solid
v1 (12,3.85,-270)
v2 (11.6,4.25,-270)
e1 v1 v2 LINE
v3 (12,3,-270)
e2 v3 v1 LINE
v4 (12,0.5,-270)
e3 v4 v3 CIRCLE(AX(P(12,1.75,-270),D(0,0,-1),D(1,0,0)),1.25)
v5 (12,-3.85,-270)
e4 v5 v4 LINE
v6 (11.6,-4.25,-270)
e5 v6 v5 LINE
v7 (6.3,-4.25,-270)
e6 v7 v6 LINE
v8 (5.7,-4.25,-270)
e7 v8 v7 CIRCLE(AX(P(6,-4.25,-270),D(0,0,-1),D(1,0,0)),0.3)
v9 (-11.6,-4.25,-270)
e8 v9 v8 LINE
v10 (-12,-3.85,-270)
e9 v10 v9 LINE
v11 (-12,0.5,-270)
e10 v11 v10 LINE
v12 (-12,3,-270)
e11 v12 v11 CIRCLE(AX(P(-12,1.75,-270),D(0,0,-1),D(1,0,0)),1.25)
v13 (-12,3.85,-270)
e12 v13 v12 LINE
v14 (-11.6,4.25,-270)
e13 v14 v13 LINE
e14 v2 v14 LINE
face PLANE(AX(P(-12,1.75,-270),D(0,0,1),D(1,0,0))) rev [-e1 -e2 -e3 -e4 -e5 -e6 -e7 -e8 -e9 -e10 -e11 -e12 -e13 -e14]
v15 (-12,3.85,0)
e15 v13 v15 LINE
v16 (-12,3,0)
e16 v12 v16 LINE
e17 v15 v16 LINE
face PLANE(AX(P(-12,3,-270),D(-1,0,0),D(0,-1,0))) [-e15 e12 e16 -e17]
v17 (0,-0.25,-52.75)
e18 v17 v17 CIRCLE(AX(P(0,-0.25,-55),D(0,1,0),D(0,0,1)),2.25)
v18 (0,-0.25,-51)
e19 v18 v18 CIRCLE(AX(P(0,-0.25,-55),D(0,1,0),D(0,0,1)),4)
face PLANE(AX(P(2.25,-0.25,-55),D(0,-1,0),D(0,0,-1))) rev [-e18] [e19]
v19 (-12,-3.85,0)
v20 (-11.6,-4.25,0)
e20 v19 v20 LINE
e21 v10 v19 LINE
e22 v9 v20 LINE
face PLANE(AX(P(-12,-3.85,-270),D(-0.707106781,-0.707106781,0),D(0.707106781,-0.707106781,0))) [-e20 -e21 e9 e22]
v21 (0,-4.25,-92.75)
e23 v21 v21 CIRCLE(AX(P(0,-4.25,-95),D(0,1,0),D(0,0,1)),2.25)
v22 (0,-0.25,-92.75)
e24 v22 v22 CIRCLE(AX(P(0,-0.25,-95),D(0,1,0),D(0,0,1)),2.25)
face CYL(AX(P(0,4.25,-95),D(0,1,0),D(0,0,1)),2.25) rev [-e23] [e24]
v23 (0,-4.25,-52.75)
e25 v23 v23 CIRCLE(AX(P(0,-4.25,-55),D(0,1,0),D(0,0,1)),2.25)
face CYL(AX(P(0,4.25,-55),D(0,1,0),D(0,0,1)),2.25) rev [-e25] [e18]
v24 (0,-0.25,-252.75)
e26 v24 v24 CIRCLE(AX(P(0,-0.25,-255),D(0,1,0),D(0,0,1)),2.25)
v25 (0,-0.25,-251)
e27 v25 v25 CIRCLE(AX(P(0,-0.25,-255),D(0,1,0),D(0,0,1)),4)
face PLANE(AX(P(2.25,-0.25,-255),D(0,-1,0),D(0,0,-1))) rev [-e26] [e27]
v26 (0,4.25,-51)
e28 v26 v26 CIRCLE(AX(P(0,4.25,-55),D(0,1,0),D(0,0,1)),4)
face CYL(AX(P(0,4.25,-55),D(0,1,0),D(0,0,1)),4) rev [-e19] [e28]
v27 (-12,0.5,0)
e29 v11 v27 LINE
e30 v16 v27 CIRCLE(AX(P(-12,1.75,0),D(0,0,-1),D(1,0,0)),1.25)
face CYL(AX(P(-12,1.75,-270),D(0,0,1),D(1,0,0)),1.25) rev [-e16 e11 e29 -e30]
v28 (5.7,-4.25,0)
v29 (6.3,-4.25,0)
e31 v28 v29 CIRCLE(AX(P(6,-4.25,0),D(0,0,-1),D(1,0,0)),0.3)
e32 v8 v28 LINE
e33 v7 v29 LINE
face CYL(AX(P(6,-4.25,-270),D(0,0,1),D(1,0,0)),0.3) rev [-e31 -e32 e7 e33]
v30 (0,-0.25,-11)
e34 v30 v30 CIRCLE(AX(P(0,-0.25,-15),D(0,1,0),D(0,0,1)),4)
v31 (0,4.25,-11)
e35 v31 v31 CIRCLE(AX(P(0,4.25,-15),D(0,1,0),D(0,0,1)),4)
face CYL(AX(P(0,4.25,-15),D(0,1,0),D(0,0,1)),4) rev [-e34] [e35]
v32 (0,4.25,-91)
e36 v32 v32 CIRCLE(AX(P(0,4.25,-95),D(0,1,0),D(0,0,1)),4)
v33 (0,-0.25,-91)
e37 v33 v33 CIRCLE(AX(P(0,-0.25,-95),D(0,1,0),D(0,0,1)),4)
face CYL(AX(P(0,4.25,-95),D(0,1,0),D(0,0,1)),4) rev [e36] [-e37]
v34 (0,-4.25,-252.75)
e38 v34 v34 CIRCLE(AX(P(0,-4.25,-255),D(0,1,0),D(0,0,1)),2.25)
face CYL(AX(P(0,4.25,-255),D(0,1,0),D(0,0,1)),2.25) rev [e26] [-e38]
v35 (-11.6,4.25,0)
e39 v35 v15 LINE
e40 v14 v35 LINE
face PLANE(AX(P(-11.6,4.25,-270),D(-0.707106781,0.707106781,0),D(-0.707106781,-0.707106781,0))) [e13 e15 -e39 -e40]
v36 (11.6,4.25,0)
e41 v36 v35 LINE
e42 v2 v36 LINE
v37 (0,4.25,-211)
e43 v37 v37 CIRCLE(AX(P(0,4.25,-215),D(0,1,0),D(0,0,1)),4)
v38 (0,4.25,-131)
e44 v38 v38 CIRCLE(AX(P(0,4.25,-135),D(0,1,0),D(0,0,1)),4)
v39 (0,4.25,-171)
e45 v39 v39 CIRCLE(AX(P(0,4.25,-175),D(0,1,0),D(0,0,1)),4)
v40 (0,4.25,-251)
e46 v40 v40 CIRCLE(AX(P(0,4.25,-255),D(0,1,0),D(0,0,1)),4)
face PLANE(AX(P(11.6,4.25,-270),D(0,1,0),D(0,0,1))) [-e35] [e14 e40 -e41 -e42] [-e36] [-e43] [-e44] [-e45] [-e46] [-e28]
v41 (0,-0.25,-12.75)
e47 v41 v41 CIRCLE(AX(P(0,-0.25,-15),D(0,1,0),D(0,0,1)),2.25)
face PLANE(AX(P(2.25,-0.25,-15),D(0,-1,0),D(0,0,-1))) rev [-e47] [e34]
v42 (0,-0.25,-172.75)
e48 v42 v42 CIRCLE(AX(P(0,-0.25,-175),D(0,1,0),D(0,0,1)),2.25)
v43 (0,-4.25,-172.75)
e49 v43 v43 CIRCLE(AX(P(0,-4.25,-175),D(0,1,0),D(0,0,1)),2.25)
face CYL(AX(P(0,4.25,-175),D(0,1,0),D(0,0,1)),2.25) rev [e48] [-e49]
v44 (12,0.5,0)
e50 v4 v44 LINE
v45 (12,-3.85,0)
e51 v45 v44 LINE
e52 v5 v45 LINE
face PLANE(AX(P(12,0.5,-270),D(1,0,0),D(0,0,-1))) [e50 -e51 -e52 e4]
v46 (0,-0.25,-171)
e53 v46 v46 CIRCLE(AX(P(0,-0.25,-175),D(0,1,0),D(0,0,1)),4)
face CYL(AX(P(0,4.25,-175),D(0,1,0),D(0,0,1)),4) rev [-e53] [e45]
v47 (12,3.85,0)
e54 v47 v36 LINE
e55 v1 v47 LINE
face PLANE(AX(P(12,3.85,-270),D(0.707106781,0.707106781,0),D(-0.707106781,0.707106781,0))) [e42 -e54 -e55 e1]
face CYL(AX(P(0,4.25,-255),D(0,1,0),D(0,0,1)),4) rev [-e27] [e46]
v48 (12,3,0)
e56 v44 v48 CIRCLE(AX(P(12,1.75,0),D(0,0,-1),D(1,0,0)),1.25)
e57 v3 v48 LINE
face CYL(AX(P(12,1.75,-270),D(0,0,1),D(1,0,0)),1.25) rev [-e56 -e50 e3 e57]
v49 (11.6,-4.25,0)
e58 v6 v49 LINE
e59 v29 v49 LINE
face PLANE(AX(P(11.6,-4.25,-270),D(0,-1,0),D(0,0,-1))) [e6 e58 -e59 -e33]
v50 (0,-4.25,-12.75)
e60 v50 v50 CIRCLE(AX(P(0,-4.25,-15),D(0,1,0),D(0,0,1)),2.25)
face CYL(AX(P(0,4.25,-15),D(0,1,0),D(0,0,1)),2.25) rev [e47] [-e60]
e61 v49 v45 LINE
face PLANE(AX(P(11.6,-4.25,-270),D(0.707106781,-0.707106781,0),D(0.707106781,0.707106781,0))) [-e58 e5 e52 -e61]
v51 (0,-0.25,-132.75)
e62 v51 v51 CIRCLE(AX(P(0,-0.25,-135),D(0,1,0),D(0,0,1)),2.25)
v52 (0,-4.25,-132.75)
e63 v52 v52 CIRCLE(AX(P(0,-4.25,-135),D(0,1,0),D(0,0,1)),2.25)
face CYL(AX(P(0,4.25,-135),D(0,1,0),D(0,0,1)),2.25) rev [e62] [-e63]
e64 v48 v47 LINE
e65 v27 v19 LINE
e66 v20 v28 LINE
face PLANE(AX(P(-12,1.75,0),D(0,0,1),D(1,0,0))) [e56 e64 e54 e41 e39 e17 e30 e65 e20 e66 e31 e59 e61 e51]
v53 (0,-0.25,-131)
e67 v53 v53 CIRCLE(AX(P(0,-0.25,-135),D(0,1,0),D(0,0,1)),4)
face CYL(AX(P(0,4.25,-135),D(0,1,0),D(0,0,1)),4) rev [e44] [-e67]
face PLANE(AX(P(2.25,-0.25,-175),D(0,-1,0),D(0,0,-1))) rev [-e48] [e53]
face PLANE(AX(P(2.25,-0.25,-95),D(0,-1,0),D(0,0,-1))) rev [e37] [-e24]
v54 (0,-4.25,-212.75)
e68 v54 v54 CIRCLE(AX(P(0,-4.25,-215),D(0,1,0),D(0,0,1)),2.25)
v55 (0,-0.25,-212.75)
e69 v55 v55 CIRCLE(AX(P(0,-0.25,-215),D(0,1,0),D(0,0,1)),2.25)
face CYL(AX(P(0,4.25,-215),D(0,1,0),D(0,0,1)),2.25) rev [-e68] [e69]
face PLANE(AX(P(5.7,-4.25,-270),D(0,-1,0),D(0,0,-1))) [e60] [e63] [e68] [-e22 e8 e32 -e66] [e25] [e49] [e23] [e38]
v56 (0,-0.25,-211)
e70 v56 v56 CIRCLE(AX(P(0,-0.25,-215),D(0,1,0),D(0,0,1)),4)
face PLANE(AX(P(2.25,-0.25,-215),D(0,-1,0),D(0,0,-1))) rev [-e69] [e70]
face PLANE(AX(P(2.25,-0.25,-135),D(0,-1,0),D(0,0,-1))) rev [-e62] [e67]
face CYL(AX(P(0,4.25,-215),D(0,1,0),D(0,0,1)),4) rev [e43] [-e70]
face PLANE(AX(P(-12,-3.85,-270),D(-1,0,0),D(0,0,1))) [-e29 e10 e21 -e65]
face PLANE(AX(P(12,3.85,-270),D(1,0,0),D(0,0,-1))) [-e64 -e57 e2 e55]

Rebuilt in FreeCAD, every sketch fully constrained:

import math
import FreeCAD as App
import Part
import Sketcher

V = App.Vector

doc = App.newDocument("Part")
params = doc.addObject("Spreadsheet::Sheet", "Params")
for row, (alias, value) in enumerate([
    ("sketch1_radius", "0.3 mm"),
    ("sketch1_radius2", "1.25 mm"),
    ("sketch1_width", "17.3 mm"),
    ("sketch1_width2", "5.3 mm"),
    ("pad1_length", "270 mm"),
    ("sketch2_diameter", "4.5 mm"),
    ("hole_diameter", "4.5 mm"),
    ("hole_cbore_diameter", "8 mm"),
    ("hole_cbore_depth", "4.5 mm"),
    ("linearpattern_pitch", "40 mm"),
], start=1):
    params.set(f"A{row}", alias)
    params.set(f"B{row}", "=" + value)
    params.setAlias(f"B{row}", alias)

body = doc.addObject("PartDesign::Body", "Body")

sketch1 = body.newObject("Sketcher::SketchObject", "Sketch")
sketch1.AttachmentSupport = (doc.getObject("XY_Plane"), [""])
sketch1.MapMode = "FlatFace"
sketch1.addGeometry([
    Part.LineSegment(V(-12, 3.85, 0), V(-12, 3, 0)),
    Part.ArcOfCircle(Part.Circle(V(-12, 1.75, 0), V(0, 0, 1), 1.25), math.radians(-90), math.radians(90)),
    Part.LineSegment(V(-12, 0.5, 0), V(-12, -3.85, 0)),
    Part.LineSegment(V(-12, -3.85, 0), V(-11.6, -4.25, 0)),
    Part.LineSegment(V(-11.6, -4.25, 0), V(5.7, -4.25, 0)),
    Part.ArcOfCircle(Part.Circle(V(6, -4.25, 0), V(0, 0, 1), 0.3), math.radians(0), math.radians(180)),
    Part.LineSegment(V(6.3, -4.25, 0), V(11.6, -4.25, 0)),
    Part.LineSegment(V(11.6, -4.25, 0), V(12, -3.85, 0)),
    Part.LineSegment(V(12, -3.85, 0), V(12, 0.5, 0)),
    Part.ArcOfCircle(Part.Circle(V(12, 1.75, 0), V(0, 0, 1), 1.25), math.radians(90), math.radians(270)),
    Part.LineSegment(V(12, 3, 0), V(12, 3.85, 0)),
    Part.LineSegment(V(12, 3.85, 0), V(11.6, 4.25, 0)),
    Part.LineSegment(V(11.6, 4.25, 0), V(-11.6, 4.25, 0)),
    Part.LineSegment(V(-11.6, 4.25, 0), V(-12, 3.85, 0)),
], False)
sketch1.addConstraint([
    Sketcher.Constraint("Coincident", 0, 2, 1, 2),
    Sketcher.Constraint("Coincident", 1, 1, 2, 1),
    Sketcher.Constraint("Coincident", 2, 2, 3, 1),
    Sketcher.Constraint("Coincident", 3, 2, 4, 1),
    Sketcher.Constraint("Coincident", 4, 2, 5, 2),
    Sketcher.Constraint("Coincident", 5, 1, 6, 1),
    Sketcher.Constraint("Coincident", 6, 2, 7, 1),
    Sketcher.Constraint("Coincident", 7, 2, 8, 1),
    Sketcher.Constraint("Coincident", 8, 2, 9, 2),
    Sketcher.Constraint("Coincident", 9, 1, 10, 1),
    Sketcher.Constraint("Coincident", 10, 2, 11, 1),
    Sketcher.Constraint("Coincident", 11, 2, 12, 1),
    Sketcher.Constraint("Coincident", 12, 2, 13, 1),
    Sketcher.Constraint("Coincident", 13, 2, 0, 1),
    Sketcher.Constraint("Vertical", 0),
    Sketcher.Constraint("Vertical", 2),
    Sketcher.Constraint("Horizontal", 4),
    Sketcher.Constraint("Horizontal", 6),
    Sketcher.Constraint("Vertical", 8),
    Sketcher.Constraint("Vertical", 10),
    Sketcher.Constraint("Horizontal", 12),
    Sketcher.Constraint("Equal", 1, 9),
    Sketcher.Constraint("Symmetric", 2, 2, 10, 2, -1, 1),
    Sketcher.Constraint("Symmetric", 3, 2, 11, 2, -1, 1),
    Sketcher.Constraint("Symmetric", 6, 2, 12, 2, -1, 1),
    Sketcher.Constraint("Symmetric", 7, 2, 13, 2, -1, 1),
    Sketcher.Constraint("Symmetric", 1, 3, 9, 3, -2),
    Sketcher.Constraint("Symmetric", 2, 2, 7, 2, -2),
    Sketcher.Constraint("Perpendicular", 3, 7),
    Sketcher.Constraint("Horizontal", 5, 3, 3, 2),
    Sketcher.Constraint("Vertical", 1, 3, 0, 2),
    Sketcher.Constraint("Vertical", 6, 2, 11, 2),
    Sketcher.Constraint("Radius", 5, 0.3),
    Sketcher.Constraint("Radius", 1, 1.25),
    Sketcher.Constraint("DistanceX", 4, 1, 4, 2, 17.3),
    Sketcher.Constraint("DistanceX", 6, 1, 6, 2, 5.3),
    Sketcher.Constraint("DistanceX", 1, 3, -1, 1, 12.0),
    Sketcher.Constraint("DistanceY", -1, 1, 0, 2, 3.0),
    Sketcher.Constraint("DistanceY", 5, 3, 1, 3, 6.0),
])
sketch1.setExpression("Constraints[32]", "Params.sketch1_radius")
sketch1.setExpression("Constraints[33]", "Params.sketch1_radius2")
sketch1.setExpression("Constraints[34]", "Params.sketch1_width")
sketch1.setExpression("Constraints[35]", "Params.sketch1_width2")
pad1 = body.newObject("PartDesign::Pad", "Pad")
pad1.Profile = sketch1
pad1.setExpression("Length", "Params.pad1_length")
pad1.Reversed = True

sketch2 = body.newObject("Sketcher::SketchObject", "Sketch001")
sketch2.AttachmentSupport = (doc.getObject("XZ_Plane"), [""])
sketch2.MapMode = "FlatFace"
sketch2.AttachmentOffset = App.Placement(V(0, 0, -4.25), App.Rotation())
sketch2.addGeometry(Part.Circle(V(0, -15, 0), V(0, 0, 1), 2.2), False)
sketch2.addConstraint([
    Sketcher.Constraint("PointOnObject", 0, 3, -2),
    Sketcher.Constraint("Diameter", 0, 4.5),
    Sketcher.Constraint("DistanceY", 0, 3, -1, 1, 15.0),
])
sketch2.setExpression("Constraints[1]", "Params.sketch2_diameter")
doc.recompute()
hole = body.newObject("PartDesign::Hole", "Hole")
hole.Profile = sketch2
hole.ThreadType = "None"
hole.setExpression("Diameter", "Params.hole_diameter")
hole.DepthType = "ThroughAll"
hole.HoleCutType = "Counterbore"
hole.setExpression("HoleCutDiameter", "Params.hole_cbore_diameter")
hole.setExpression("HoleCutDepth", "Params.hole_cbore_depth")
hole.Reversed = True
doc.recompute()

linearpattern = body.newObject("PartDesign::LinearPattern", "LinearPattern")
linearpattern.Originals = [hole]
linearpattern.Direction = (doc.getObject("Z_Axis"), [""])
linearpattern.Mode = "offset"
linearpattern.setExpression("Offset", "Params.linearpattern_pitch")
linearpattern.Occurrences = 7
linearpattern.Reversed = True
body.Tip = linearpattern

doc.recompute()
